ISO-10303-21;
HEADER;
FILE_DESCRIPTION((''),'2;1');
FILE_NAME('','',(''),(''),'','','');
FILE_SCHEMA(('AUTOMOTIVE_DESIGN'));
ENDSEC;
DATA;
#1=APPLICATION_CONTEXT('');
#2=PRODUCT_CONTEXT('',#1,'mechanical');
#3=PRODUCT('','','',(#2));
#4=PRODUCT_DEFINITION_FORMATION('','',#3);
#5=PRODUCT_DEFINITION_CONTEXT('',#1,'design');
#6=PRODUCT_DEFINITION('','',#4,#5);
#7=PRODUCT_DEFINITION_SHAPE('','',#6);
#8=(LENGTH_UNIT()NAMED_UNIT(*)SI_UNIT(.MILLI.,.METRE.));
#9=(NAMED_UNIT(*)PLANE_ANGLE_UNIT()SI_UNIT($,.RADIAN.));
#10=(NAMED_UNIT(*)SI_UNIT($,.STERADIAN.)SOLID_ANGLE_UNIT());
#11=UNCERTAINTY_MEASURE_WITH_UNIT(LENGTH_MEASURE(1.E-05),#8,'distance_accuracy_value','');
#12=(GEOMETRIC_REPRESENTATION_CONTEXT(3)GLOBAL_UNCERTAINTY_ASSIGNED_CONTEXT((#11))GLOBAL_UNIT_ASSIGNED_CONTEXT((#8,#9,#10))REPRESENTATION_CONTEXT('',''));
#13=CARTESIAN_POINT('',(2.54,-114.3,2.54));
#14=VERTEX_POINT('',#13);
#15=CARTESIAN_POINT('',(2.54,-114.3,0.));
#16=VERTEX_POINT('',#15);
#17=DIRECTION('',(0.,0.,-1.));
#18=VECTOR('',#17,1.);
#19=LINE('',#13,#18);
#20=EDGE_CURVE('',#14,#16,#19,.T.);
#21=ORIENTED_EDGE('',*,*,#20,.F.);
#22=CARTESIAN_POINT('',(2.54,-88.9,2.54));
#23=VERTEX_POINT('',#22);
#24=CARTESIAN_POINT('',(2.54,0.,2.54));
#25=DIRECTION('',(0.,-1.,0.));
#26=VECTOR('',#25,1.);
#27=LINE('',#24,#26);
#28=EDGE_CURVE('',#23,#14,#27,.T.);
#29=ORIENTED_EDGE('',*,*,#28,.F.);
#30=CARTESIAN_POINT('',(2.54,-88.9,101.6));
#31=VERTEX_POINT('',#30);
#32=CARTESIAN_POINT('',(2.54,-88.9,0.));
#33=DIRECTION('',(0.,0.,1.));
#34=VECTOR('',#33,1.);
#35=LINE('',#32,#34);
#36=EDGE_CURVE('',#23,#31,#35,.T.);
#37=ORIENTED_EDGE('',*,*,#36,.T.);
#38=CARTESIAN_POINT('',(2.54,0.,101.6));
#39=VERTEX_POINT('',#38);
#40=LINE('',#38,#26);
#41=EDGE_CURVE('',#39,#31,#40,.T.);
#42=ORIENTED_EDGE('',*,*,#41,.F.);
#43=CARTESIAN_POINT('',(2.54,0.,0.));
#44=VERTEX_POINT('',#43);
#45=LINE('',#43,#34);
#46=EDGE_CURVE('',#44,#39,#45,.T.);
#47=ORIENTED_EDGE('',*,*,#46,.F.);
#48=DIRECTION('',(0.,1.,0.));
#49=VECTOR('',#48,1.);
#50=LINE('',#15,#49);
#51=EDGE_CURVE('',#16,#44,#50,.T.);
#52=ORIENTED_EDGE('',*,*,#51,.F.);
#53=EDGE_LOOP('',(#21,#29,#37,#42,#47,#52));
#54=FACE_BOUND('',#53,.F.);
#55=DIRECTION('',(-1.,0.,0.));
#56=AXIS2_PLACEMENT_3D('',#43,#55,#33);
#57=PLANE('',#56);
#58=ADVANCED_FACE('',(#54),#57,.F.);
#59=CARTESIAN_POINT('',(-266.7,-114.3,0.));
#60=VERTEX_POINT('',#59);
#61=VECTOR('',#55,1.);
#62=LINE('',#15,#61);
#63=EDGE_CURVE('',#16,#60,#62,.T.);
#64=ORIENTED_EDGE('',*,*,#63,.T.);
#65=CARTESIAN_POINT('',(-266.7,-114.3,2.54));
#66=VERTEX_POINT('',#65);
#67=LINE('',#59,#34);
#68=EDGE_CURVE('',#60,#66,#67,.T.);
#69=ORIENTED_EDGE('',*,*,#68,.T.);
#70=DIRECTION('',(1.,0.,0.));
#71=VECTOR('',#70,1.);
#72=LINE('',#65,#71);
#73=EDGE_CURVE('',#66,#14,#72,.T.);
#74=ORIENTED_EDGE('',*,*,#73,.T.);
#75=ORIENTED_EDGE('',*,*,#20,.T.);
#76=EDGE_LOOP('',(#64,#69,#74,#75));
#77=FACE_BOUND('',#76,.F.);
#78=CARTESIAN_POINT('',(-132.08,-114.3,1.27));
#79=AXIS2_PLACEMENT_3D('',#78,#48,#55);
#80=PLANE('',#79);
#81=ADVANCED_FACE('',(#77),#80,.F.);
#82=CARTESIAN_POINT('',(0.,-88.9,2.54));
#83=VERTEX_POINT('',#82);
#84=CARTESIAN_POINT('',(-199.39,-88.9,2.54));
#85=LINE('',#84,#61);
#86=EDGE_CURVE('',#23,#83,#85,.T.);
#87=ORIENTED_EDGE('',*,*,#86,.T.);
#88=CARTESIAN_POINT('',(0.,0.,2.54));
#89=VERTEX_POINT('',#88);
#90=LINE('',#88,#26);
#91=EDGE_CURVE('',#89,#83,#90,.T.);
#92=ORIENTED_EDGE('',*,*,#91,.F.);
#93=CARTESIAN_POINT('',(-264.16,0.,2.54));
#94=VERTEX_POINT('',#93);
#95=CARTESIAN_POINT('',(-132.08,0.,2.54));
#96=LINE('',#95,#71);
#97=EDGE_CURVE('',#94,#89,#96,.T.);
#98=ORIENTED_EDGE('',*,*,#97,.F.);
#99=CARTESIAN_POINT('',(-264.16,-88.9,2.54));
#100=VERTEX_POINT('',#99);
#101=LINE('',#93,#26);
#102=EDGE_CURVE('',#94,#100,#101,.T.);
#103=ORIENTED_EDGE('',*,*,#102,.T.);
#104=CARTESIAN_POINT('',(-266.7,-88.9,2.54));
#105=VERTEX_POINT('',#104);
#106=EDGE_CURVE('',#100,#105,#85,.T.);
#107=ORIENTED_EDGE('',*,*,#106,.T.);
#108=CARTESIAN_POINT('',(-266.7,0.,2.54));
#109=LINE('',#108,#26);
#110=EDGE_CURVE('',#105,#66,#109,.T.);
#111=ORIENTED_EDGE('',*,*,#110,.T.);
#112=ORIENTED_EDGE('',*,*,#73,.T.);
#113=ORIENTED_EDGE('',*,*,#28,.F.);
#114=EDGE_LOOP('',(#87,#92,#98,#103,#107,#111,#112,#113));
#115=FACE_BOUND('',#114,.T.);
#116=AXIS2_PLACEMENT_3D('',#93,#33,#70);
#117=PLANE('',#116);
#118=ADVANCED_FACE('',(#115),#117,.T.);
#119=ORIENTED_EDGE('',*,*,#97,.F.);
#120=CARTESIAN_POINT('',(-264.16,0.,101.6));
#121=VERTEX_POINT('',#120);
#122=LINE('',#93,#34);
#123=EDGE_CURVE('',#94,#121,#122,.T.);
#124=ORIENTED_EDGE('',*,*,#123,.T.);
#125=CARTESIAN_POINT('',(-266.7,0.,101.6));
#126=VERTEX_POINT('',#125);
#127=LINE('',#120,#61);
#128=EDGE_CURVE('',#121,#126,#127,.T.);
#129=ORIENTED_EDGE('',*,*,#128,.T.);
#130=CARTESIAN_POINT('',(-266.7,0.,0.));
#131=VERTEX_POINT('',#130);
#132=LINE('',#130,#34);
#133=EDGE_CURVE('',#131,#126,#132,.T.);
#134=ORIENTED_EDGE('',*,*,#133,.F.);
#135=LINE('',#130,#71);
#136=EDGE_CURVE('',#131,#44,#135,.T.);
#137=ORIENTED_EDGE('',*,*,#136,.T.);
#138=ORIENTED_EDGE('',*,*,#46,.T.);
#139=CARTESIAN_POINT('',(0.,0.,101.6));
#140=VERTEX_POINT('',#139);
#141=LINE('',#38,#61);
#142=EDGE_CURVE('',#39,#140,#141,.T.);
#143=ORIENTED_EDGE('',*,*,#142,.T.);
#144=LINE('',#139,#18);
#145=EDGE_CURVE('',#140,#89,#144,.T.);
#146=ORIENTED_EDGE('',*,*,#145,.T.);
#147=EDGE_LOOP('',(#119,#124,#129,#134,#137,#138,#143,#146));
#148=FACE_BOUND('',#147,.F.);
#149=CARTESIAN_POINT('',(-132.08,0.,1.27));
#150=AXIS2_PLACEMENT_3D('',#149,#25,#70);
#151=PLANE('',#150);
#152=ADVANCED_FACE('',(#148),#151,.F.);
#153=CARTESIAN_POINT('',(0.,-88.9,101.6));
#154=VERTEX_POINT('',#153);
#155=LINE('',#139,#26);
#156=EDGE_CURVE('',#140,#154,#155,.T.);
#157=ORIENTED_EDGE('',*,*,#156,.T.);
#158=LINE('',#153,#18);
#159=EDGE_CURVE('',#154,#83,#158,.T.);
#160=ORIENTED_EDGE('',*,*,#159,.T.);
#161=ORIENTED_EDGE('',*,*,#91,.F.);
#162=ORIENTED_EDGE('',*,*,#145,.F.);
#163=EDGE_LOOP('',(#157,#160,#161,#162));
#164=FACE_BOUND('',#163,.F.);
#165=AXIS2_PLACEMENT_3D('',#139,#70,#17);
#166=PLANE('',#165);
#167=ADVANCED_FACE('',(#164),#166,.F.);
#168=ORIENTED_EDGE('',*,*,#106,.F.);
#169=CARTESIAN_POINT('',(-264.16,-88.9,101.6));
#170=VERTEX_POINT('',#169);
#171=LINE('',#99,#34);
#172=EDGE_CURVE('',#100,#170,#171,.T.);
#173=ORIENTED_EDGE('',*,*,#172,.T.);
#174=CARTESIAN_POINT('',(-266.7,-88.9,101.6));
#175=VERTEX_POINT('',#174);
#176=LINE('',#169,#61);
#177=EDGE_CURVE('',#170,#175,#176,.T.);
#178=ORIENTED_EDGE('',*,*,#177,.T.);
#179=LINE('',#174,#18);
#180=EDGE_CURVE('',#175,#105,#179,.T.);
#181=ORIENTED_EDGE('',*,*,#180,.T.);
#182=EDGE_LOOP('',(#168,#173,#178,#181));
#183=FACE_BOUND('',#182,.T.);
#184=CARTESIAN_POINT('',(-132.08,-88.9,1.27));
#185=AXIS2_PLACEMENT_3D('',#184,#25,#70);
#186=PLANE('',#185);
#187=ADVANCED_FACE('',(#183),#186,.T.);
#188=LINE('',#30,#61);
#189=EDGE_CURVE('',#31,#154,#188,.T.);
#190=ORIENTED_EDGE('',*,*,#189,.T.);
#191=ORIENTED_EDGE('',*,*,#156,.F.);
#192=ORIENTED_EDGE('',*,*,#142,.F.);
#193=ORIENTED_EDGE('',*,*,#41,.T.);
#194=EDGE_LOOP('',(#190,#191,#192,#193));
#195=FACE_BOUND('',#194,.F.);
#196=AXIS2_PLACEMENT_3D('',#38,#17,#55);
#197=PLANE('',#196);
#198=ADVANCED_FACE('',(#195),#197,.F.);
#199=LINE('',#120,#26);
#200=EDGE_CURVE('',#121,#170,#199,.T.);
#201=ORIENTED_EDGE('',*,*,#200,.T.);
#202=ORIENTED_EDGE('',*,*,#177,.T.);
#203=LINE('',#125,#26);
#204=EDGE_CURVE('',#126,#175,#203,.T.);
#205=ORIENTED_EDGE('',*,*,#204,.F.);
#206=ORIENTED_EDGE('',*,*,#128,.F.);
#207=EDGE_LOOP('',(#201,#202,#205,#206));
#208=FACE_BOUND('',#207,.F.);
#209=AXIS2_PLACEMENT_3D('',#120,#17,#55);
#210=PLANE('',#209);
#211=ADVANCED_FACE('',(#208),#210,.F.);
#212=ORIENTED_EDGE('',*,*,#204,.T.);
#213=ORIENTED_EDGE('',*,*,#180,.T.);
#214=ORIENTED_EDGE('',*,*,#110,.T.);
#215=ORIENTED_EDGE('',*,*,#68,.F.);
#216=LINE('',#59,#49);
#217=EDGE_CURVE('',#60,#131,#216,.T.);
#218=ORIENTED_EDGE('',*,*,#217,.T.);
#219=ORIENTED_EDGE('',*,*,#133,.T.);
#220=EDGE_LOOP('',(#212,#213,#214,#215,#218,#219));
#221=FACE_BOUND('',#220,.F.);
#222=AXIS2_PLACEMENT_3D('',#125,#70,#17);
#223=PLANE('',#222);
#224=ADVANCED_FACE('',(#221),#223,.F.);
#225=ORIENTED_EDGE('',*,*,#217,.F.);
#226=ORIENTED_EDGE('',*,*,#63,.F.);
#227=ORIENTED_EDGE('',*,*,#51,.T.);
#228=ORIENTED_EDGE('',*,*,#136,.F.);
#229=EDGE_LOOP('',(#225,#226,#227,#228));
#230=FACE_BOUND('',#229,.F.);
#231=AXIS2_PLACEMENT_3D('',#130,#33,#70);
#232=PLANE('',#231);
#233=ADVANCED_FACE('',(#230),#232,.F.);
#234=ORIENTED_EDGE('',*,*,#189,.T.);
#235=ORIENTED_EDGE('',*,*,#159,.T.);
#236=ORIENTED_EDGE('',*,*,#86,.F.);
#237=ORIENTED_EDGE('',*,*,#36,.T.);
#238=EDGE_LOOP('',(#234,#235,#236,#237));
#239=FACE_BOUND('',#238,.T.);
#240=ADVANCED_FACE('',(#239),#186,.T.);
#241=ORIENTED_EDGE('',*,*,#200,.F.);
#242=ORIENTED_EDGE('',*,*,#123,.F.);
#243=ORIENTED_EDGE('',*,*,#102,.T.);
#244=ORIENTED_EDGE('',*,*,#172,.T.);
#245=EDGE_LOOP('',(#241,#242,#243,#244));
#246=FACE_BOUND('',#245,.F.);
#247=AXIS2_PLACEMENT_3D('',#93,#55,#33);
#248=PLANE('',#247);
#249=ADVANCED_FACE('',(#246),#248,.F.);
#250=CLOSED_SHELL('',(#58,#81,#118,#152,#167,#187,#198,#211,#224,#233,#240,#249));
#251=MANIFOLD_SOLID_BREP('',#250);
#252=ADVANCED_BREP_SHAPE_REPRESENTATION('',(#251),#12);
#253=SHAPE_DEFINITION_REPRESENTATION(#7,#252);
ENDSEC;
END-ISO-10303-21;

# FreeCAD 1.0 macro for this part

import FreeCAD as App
import Part
import Sketcher
from FreeCAD import Vector
Q = App.Units.Quantity

doc = App.newDocument("Part")
body = doc.addObject("PartDesign::Body", "Body")

sketch1 = body.newObject("Sketcher::SketchObject", "Sketch")
sketch1.AttachmentSupport = (doc.getObject("XZ_Plane"), [""])
sketch1.MapMode = "FlatFace"
sketch1.addGeometry(Part.LineSegment(Vector(2.5, 0, 0), Vector(2.5, 101.6, 0)), False)
sketch1.addGeometry(Part.LineSegment(Vector(2.5, 101.6, 0), Vector(0, 101.6, 0)), False)
sketch1.addGeometry(Part.LineSegment(Vector(0, 101.6, 0), Vector(0, 2.5, 0)), False)
sketch1.addGeometry(Part.LineSegment(Vector(0, 2.5, 0), Vector(-264.2, 2.5, 0)), False)
sketch1.addGeometry(Part.LineSegment(Vector(-264.2, 2.5, 0), Vector(-264.2, 101.6, 0)), False)
sketch1.addGeometry(Part.LineSegment(Vector(-264.2, 101.6, 0), Vector(-266.7, 101.6, 0)), False)
sketch1.addGeometry(Part.LineSegment(Vector(-266.7, 101.6, 0), Vector(-266.7, 0, 0)), False)
sketch1.addGeometry(Part.LineSegment(Vector(-266.7, 0, 0), Vector(2.5, 0, 0)), False)
sketch1.addConstraint(Sketcher.Constraint("Coincident", 0, 2, 1, 1))
sketch1.addConstraint(Sketcher.Constraint("Coincident", 1, 2, 2, 1))
sketch1.addConstraint(Sketcher.Constraint("Coincident", 2, 2, 3, 1))
sketch1.addConstraint(Sketcher.Constraint("Coincident", 3, 2, 4, 1))
sketch1.addConstraint(Sketcher.Constraint("Coincident", 4, 2, 5, 1))
sketch1.addConstraint(Sketcher.Constraint("Coincident", 5, 2, 6, 1))
sketch1.addConstraint(Sketcher.Constraint("Coincident", 6, 2, 7, 1))
sketch1.addConstraint(Sketcher.Constraint("Coincident", 7, 2, 0, 1))
sketch1.addConstraint(Sketcher.Constraint("Vertical", 0))
sketch1.addConstraint(Sketcher.Constraint("Horizontal", 1))
sketch1.addConstraint(Sketcher.Constraint("Vertical", 2))
sketch1.addConstraint(Sketcher.Constraint("Horizontal", 3))
sketch1.addConstraint(Sketcher.Constraint("Vertical", 4))
sketch1.addConstraint(Sketcher.Constraint("Horizontal", 5))
sketch1.addConstraint(Sketcher.Constraint("Vertical", 6))
sketch1.addConstraint(Sketcher.Constraint("Horizontal", 7))
sketch1.addConstraint(Sketcher.Constraint("PointOnObject", 1, 2, -2))
sketch1.addConstraint(Sketcher.Constraint("PointOnObject", 6, 2, -1))
sketch1.addConstraint(Sketcher.Constraint("Horizontal", 1, 2, 4, 2))
sketch1.addConstraint(Sketcher.Constraint("Equal", 1, 5))
sketch1.addConstraint(Sketcher.Constraint("DistanceY", 0, 1, 0, 2, Q("4 in")))
sketch1.addConstraint(Sketcher.Constraint("DistanceX", 1, 2, 1, 1, Q("0.1 in")))
sketch1.addConstraint(Sketcher.Constraint("DistanceX", 3, 2, 3, 1, Q("10.4 in")))
sketch1.addConstraint(Sketcher.Constraint("DistanceY", 2, 2, 2, 1, Q("3.9 in")))
pad1 = body.newObject("PartDesign::Pad", "Pad")
pad1.Profile = sketch1
pad1.Length = Q("3.5 in")

sketch2 = body.newObject("Sketcher::SketchObject", "Sketch001")
sketch2.AttachmentSupport = (doc.getObject("XZ_Plane"), [""])
sketch2.MapMode = "FlatFace"
sketch2.addGeometry(Part.LineSegment(Vector(-266.7, 2.5, 0), Vector(2.5, 2.5, 0)), False)
sketch2.addGeometry(Part.LineSegment(Vector(2.5, 2.5, 0), Vector(2.5, 0, 0)), False)
sketch2.addGeometry(Part.LineSegment(Vector(2.5, 0, 0), Vector(-266.7, 0, 0)), False)
sketch2.addGeometry(Part.LineSegment(Vector(-266.7, 0, 0), Vector(-266.7, 2.5, 0)), False)
sketch2.addConstraint(Sketcher.Constraint("Coincident", 0, 2, 1, 1))
sketch2.addConstraint(Sketcher.Constraint("Coincident", 1, 2, 2, 1))
sketch2.addConstraint(Sketcher.Constraint("Coincident", 2, 2, 3, 1))
sketch2.addConstraint(Sketcher.Constraint("Coincident", 3, 2, 0, 1))
sketch2.addConstraint(Sketcher.Constraint("Horizontal", 0))
sketch2.addConstraint(Sketcher.Constraint("Vertical", 1))
sketch2.addConstraint(Sketcher.Constraint("Horizontal", 2))
sketch2.addConstraint(Sketcher.Constraint("Vertical", 3))
sketch2.addConstraint(Sketcher.Constraint("PointOnObject", 1, 2, -1))
sketch2.addConstraint(Sketcher.Constraint("DistanceX", 0, 1, 0, 2, Q("10.6 in")))
sketch2.addConstraint(Sketcher.Constraint("DistanceY", 1, 2, 1, 1, Q("0.1 in")))
sketch2.addConstraint(Sketcher.Constraint("DistanceX", -1, 1, 0, 2, Q("0.1 in")))
pad2 = body.newObject("PartDesign::Pad", "Pad001")
pad2.Profile = sketch2
pad2.Length = Q("4.5 in")

doc.recompute()
